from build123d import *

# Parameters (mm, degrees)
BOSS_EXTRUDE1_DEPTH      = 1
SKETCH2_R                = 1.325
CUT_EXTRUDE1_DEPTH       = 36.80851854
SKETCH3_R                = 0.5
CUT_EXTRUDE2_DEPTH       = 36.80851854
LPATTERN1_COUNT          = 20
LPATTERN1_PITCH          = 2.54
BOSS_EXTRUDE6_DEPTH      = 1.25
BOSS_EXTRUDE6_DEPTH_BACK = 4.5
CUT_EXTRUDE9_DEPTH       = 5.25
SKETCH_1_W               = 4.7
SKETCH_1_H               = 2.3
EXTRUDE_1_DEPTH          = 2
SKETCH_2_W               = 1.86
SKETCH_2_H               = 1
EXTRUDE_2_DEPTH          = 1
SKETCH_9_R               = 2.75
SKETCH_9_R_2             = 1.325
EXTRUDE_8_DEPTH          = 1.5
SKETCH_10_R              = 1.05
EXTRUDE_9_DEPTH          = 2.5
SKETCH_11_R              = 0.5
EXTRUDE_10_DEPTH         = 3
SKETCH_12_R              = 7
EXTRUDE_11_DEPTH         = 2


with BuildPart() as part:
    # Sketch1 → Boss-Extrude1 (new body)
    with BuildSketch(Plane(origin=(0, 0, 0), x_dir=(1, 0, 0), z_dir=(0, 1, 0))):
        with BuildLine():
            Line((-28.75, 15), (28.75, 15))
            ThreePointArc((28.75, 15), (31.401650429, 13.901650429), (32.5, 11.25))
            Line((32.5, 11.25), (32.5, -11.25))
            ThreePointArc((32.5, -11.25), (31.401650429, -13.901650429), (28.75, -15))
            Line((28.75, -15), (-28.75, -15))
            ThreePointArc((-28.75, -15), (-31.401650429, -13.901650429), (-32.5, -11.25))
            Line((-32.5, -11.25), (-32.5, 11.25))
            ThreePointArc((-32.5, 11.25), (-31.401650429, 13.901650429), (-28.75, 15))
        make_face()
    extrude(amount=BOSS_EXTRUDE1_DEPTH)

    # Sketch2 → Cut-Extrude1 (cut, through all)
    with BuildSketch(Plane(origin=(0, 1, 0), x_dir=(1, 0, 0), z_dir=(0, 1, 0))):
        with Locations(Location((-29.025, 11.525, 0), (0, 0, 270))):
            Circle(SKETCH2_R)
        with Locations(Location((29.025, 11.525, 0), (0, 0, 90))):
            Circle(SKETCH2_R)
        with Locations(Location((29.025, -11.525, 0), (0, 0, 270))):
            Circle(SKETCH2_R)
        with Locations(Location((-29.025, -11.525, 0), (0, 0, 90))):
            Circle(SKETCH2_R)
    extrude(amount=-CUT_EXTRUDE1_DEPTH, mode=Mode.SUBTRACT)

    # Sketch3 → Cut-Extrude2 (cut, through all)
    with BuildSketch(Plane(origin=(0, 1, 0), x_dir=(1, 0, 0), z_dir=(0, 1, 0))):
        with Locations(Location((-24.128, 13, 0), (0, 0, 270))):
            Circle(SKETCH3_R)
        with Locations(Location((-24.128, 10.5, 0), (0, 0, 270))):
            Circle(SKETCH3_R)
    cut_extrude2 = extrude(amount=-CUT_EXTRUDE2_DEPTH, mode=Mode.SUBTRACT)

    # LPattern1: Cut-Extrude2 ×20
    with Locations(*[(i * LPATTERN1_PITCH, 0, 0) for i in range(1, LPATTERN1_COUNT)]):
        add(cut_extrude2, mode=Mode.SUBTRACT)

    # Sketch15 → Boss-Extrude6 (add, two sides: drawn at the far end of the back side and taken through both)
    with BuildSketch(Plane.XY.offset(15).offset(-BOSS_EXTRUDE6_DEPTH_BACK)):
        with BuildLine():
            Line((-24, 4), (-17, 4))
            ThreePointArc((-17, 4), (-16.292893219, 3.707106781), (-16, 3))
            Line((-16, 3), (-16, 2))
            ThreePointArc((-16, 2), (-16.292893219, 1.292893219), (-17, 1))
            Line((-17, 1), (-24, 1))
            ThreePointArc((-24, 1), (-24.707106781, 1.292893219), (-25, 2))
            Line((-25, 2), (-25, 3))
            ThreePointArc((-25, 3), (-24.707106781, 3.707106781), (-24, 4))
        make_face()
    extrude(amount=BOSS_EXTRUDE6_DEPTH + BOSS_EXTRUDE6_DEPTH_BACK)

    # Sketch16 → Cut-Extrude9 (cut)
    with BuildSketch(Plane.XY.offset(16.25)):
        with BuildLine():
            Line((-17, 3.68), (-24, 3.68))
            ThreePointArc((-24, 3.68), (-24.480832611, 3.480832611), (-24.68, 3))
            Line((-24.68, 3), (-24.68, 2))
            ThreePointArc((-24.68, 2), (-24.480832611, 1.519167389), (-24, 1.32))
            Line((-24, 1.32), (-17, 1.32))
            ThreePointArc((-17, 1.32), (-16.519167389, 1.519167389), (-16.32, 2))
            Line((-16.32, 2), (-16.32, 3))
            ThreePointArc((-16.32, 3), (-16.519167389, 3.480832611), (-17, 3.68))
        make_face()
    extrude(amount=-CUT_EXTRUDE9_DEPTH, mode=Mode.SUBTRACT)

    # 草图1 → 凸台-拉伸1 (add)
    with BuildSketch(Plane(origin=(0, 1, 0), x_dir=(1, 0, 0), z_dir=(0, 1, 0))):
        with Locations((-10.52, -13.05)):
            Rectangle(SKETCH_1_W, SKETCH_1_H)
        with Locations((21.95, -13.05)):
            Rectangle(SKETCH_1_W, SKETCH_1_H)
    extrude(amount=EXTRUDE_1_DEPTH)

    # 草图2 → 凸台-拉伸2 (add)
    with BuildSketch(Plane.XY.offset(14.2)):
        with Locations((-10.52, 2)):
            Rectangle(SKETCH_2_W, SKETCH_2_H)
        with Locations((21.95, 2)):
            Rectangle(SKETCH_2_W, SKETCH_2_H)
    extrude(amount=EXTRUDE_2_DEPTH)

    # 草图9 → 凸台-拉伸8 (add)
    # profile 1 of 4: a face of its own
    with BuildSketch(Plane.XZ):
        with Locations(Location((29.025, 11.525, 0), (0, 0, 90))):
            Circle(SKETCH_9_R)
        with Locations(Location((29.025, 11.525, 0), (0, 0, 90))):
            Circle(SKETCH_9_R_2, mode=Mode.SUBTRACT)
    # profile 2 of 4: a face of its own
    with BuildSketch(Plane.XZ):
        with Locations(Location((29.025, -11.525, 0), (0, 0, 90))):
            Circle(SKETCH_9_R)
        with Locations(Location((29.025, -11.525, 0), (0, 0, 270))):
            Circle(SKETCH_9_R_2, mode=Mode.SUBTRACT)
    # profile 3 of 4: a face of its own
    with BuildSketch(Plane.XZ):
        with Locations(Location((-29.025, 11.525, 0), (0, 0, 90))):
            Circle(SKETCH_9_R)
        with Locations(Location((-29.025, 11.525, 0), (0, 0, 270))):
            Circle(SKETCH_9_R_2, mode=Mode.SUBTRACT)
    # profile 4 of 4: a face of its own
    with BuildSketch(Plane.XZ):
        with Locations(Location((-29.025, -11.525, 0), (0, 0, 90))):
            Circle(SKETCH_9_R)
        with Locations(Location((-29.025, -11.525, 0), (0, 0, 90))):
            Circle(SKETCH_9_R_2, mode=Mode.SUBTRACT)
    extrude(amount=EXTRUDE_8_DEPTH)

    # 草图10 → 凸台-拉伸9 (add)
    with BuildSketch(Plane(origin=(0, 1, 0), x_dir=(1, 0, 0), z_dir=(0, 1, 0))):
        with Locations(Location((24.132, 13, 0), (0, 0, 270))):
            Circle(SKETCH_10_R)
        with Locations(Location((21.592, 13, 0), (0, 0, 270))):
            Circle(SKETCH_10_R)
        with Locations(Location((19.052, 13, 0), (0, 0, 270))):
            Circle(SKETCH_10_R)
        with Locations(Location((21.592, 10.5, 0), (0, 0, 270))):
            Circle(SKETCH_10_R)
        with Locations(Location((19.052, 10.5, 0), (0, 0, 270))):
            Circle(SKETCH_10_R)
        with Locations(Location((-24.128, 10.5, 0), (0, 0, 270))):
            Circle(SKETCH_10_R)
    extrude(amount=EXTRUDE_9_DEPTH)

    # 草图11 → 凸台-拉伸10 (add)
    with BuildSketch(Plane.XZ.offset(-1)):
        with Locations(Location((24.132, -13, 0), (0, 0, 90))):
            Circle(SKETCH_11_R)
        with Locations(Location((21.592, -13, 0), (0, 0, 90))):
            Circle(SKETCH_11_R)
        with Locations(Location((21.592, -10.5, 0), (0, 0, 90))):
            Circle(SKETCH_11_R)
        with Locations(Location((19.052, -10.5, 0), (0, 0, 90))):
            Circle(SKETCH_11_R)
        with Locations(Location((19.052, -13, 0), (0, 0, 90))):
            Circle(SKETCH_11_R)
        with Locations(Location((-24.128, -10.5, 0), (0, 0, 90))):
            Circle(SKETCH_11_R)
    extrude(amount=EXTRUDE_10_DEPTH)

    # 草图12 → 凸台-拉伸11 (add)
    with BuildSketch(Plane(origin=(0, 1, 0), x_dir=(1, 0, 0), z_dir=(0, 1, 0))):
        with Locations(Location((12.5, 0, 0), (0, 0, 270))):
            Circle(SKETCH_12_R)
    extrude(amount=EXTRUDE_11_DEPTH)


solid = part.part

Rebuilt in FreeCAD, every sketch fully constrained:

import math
import FreeCAD as App
import Part
import Sketcher
Q = App.Units.Quantity


def add_polygon(sketch, points):
    """Adds a closed chain of lines whose ends are joined by coincident constraints."""
    first, n = sketch.GeometryCount, len(points)
    for a, b in zip(points, points[1:] + points[:1]):
        sketch.addGeometry(Part.LineSegment(App.Vector(*a, 0), App.Vector(*b, 0)), False)
    for i in range(n):
        sketch.addConstraint(Sketcher.Constraint("Coincident", first + i, 2, first + (i + 1) % n, 1))

doc = App.newDocument("Part")
params = doc.addObject("Spreadsheet::Sheet", "Params")
for row, (alias, value) in enumerate([
    ("sketch1_radius", "3.75 mm"),
    ("sketch1_width", "57.5 mm"),
    ("sketch1_height", "22.5 mm"),
    ("pad1_length", "1 mm"),
    ("sketch2_diameter", "2.65 mm"),
    ("sketch3_diameter", "1 mm"),
    ("linearpattern_pitch", "2.54 mm"),
    ("sketch4_radius", "1 mm"),
    ("sketch4_width", "7 mm"),
    ("sketch4_height", "1 mm"),
    ("pad2_length", "1.25 mm"),
    ("pad2_length2", "4.5 mm"),
    ("sketch5_width", "7 mm"),
    ("sketch5_height", "1 mm"),
    ("sketch5_radius", "0.68 mm"),
    ("pocket3_length", "5.25 mm"),
    ("sketch6_width", "4.7 mm"),
    ("sketch6_height", "2.3 mm"),
    ("pad3_length", "2 mm"),
    ("sketch7_height", "1 mm"),
    ("sketch7_width", "1.86 mm"),
    ("pad4_length", "1 mm"),
    ("sketch8_diameter", "5.5 mm"),
    ("sketch8_diameter2", "2.65 mm"),
    ("pad5_length", "1.5 mm"),
    ("sketch9_diameter", "2.1 mm"),
    ("pad6_length", "2.5 mm"),
    ("sketch10_diameter", "1 mm"),
    ("pad7_length", "3 mm"),
    ("sketch11_diameter", "14 mm"),
    ("pad8_length", "2 mm"),
], start=1):
    params.set(f"A{row}", alias)
    params.set(f"B{row}", "=" + value)
    params.setAlias(f"B{row}", alias)

body = doc.addObject("PartDesign::Body", "Body")

sketch1 = doc.addObject("Sketcher::SketchObject", "Sketch")
body.addObject(sketch1)
sketch1.AttachmentSupport = (doc.XZ_Plane, [""])
sketch1.MapMode = "FlatFace"
sketch1.addGeometry(Part.LineSegment(App.Vector(28.75, -15, 0), App.Vector(-28.75, -15, 0)), False)
sketch1.addGeometry(Part.ArcOfCircle(Part.Circle(App.Vector(-28.75, -11.25, 0), App.Vector(0, 0, 1), 3.75), math.radians(-180), math.radians(-90)), False)
sketch1.addGeometry(Part.LineSegment(App.Vector(-32.5, -11.25, 0), App.Vector(-32.5, 11.25, 0)), False)
sketch1.addGeometry(Part.ArcOfCircle(Part.Circle(App.Vector(-28.75, 11.25, 0), App.Vector(0, 0, 1), 3.75), math.radians(90), math.radians(180)), False)
sketch1.addGeometry(Part.LineSegment(App.Vector(-28.75, 15, 0), App.Vector(28.75, 15, 0)), False)
sketch1.addGeometry(Part.ArcOfCircle(Part.Circle(App.Vector(28.75, 11.25, 0), App.Vector(0, 0, 1), 3.75), math.radians(0), math.radians(90)), False)
sketch1.addGeometry(Part.LineSegment(App.Vector(32.5, 11.25, 0), App.Vector(32.5, -11.25, 0)), False)
sketch1.addGeometry(Part.ArcOfCircle(Part.Circle(App.Vector(28.75, -11.25, 0), App.Vector(0, 0, 1), 3.75), math.radians(-90), math.radians(0)), False)
sketch1.addConstraint(Sketcher.Constraint("Tangent", 0, 2, 1, 2))
sketch1.addConstraint(Sketcher.Constraint("Tangent", 1, 1, 2, 1))
sketch1.addConstraint(Sketcher.Constraint("Tangent", 2, 2, 3, 2))
sketch1.addConstraint(Sketcher.Constraint("Tangent", 3, 1, 4, 1))
sketch1.addConstraint(Sketcher.Constraint("Tangent", 4, 2, 5, 2))
sketch1.addConstraint(Sketcher.Constraint("Tangent", 5, 1, 6, 1))
sketch1.addConstraint(Sketcher.Constraint("Tangent", 6, 2, 7, 2))
sketch1.addConstraint(Sketcher.Constraint("Tangent", 7, 1, 0, 1))
sketch1.addConstraint(Sketcher.Constraint("Horizontal", 0))
sketch1.addConstraint(Sketcher.Constraint("Vertical", 2))
sketch1.addConstraint(Sketcher.Constraint("Horizontal", 4))
sketch1.addConstraint(Sketcher.Constraint("Vertical", 6))
sketch1.addConstraint(Sketcher.Constraint("Equal", 1, 3))
sketch1.addConstraint(Sketcher.Constraint("Equal", 3, 5))
sketch1.addConstraint(Sketcher.Constraint("Equal", 5, 7))
sketch1.addConstraint(Sketcher.Constraint("Symmetric", 1, 3, 5, 3, -1, 1))
sketch1.addConstraint(Sketcher.Constraint("Radius", 1, Q("3.75 mm")))
sketch1.addConstraint(Sketcher.Constraint("DistanceX", 0, 2, 0, 1, Q("57.5 mm")))
sketch1.addConstraint(Sketcher.Constraint("DistanceY", 2, 1, 2, 2, Q("22.5 mm")))
sketch1.setExpression("Constraints[16]", "Params.sketch1_radius")
sketch1.setExpression("Constraints[17]", "Params.sketch1_width")
sketch1.setExpression("Constraints[18]", "Params.sketch1_height")
pad1 = doc.addObject("PartDesign::Pad", "Pad")
body.addObject(pad1)
pad1.Profile = sketch1
pad1.setExpression("Length", "Params.pad1_length")
pad1.Reversed = True

sketch2 = doc.addObject("Sketcher::SketchObject", "Sketch001")
body.addObject(sketch2)
sketch2.AttachmentSupport = (doc.XZ_Plane, [""])
sketch2.MapMode = "FlatFace"
sketch2.AttachmentOffset = App.Placement(App.Vector(0, 0, -1), App.Rotation())
sketch2.addGeometry(Part.Circle(App.Vector(-29.025, -11.525, 0), App.Vector(0, 0, 1), 1.325), False)
sketch2.addGeometry(Part.Circle(App.Vector(29.025, -11.525, 0), App.Vector(0, 0, 1), 1.325), False)
sketch2.addGeometry(Part.Circle(App.Vector(29.025, 11.525, 0), App.Vector(0, 0, 1), 1.325), False)
sketch2.addGeometry(Part.Circle(App.Vector(-29.025, 11.525, 0), App.Vector(0, 0, 1), 1.325), False)
sketch2.addConstraint(Sketcher.Constraint("Equal", 0, 1))
sketch2.addConstraint(Sketcher.Constraint("Equal", 1, 2))
sketch2.addConstraint(Sketcher.Constraint("Equal", 2, 3))
sketch2.addConstraint(Sketcher.Constraint("Symmetric", 0, 3, 2, 3, -1, 1))
sketch2.addConstraint(Sketcher.Constraint("Symmetric", 1, 3, 3, 3, -1, 1))
sketch2.addConstraint(Sketcher.Constraint("Symmetric", 0, 3, 1, 3, -2))
sketch2.addConstraint(Sketcher.Constraint("Diameter", 0, Q("2.65 mm")))
sketch2.addConstraint(Sketcher.Constraint("DistanceX", 0, 3, 1, 3, Q("58.05 mm")))
sketch2.addConstraint(Sketcher.Constraint("DistanceY", 1, 3, 2, 3, Q("23.05 mm")))
sketch2.setExpression("Constraints[6]", "Params.sketch2_diameter")
pocket1 = doc.addObject("PartDesign::Pocket", "Pocket")
body.addObject(pocket1)
pocket1.Profile = sketch2
pocket1.Type = "ThroughAll"
pocket1.Reversed = True

sketch3 = doc.addObject("Sketcher::SketchObject", "Sketch002")
body.addObject(sketch3)
sketch3.AttachmentSupport = (doc.XZ_Plane, [""])
sketch3.MapMode = "FlatFace"
sketch3.AttachmentOffset = App.Placement(App.Vector(0, 0, -1), App.Rotation())
sketch3.addGeometry(Part.Circle(App.Vector(-24.128, -13, 0), App.Vector(0, 0, 1), 0.5), False)
sketch3.addGeometry(Part.Circle(App.Vector(-24.128, -10.5, 0), App.Vector(0, 0, 1), 0.5), False)
sketch3.addConstraint(Sketcher.Constraint("Equal", 0, 1))
sketch3.addConstraint(Sketcher.Constraint("Vertical", 0, 3, 1, 3))
sketch3.addConstraint(Sketcher.Constraint("Diameter", 0, Q("1 mm")))
sketch3.addConstraint(Sketcher.Constraint("DistanceY", 0, 3, -1, 1, Q("13 mm")))
sketch3.addConstraint(Sketcher.Constraint("DistanceY", 1, 3, -1, 1, Q("10.5 mm")))
sketch3.addConstraint(Sketcher.Constraint("DistanceX", 0, 3, -1, 1, Q("24.128 mm")))
sketch3.setExpression("Constraints[2]", "Params.sketch3_diameter")
pocket2 = doc.addObject("PartDesign::Pocket", "Pocket001")
body.addObject(pocket2)
pocket2.Profile = sketch3
pocket2.Type = "ThroughAll"
pocket2.Reversed = True
doc.recompute()

linearpattern = doc.addObject("PartDesign::LinearPattern", "LinearPattern")
body.addObject(linearpattern)
linearpattern.Originals = [pocket2]
linearpattern.Direction = (doc.X_Axis, [""])
linearpattern.Mode = "offset"
linearpattern.setExpression("Offset", "Params.linearpattern_pitch")
linearpattern.Occurrences = 20
body.Tip = linearpattern

sketch4 = doc.addObject("Sketcher::SketchObject", "Sketch003")
body.addObject(sketch4)
sketch4.AttachmentSupport = (doc.XY_Plane, [""])
sketch4.MapMode = "FlatFace"
sketch4.AttachmentOffset = App.Placement(App.Vector(0, 0, 15), App.Rotation())
sketch4.addGeometry(Part.LineSegment(App.Vector(-17, 4, 0), App.Vector(-24, 4, 0)), False)
sketch4.addGeometry(Part.ArcOfCircle(Part.Circle(App.Vector(-24, 3, 0), App.Vector(0, 0, 1), 1), math.radians(90), math.radians(180)), False)
sketch4.addGeometry(Part.LineSegment(App.Vector(-25, 3, 0), App.Vector(-25, 2, 0)), False)
sketch4.addGeometry(Part.ArcOfCircle(Part.Circle(App.Vector(-24, 2, 0), App.Vector(0, 0, 1), 1), math.radians(-180), math.radians(-90)), False)
sketch4.addGeometry(Part.LineSegment(App.Vector(-24, 1, 0), App.Vector(-17, 1, 0)), False)
sketch4.addGeometry(Part.ArcOfCircle(Part.Circle(App.Vector(-17, 2, 0), App.Vector(0, 0, 1), 1), math.radians(-90), math.radians(0)), False)
sketch4.addGeometry(Part.LineSegment(App.Vector(-16, 2, 0), App.Vector(-16, 3, 0)), False)
sketch4.addGeometry(Part.ArcOfCircle(Part.Circle(App.Vector(-17, 3, 0), App.Vector(0, 0, 1), 1), math.radians(0), math.radians(90)), False)
sketch4.addConstraint(Sketcher.Constraint("Tangent", 0, 2, 1, 1))
sketch4.addConstraint(Sketcher.Constraint("Tangent", 1, 2, 2, 1))
sketch4.addConstraint(Sketcher.Constraint("Tangent", 2, 2, 3, 1))
sketch4.addConstraint(Sketcher.Constraint("Tangent", 3, 2, 4, 1))
sketch4.addConstraint(Sketcher.Constraint("Tangent", 4, 2, 5, 1))
sketch4.addConstraint(Sketcher.Constraint("Tangent", 5, 2, 6, 1))
sketch4.addConstraint(Sketcher.Constraint("Tangent", 6, 2, 7, 1))
sketch4.addConstraint(Sketcher.Constraint("Tangent", 7, 2, 0, 1))
sketch4.addConstraint(Sketcher.Constraint("Horizontal", 0))
sketch4.addConstraint(Sketcher.Constraint("Vertical", 2))
sketch4.addConstraint(Sketcher.Constraint("Horizontal", 4))
sketch4.addConstraint(Sketcher.Constraint("Vertical", 6))
sketch4.addConstraint(Sketcher.Constraint("Equal", 1, 3))
sketch4.addConstraint(Sketcher.Constraint("Equal", 3, 5))
sketch4.addConstraint(Sketcher.Constraint("Equal", 5, 7))
sketch4.addConstraint(Sketcher.Constraint("Radius", 1, Q("1 mm")))
sketch4.addConstraint(Sketcher.Constraint("DistanceX", 0, 2, 0, 1, Q("7 mm")))
sketch4.addConstraint(Sketcher.Constraint("DistanceY", 2, 2, 2, 1, Q("1 mm")))
sketch4.addConstraint(Sketcher.Constraint("DistanceX", 1, 3, -1, 1, Q("24 mm")))
sketch4.addConstraint(Sketcher.Constraint("DistanceY", -1, 1, 1, 3, Q("3 mm")))
sketch4.setExpression("Constraints[15]", "Params.sketch4_radius")
sketch4.setExpression("Constraints[16]", "Params.sketch4_width")
sketch4.setExpression("Constraints[17]", "Params.sketch4_height")
pad2 = doc.addObject("PartDesign::Pad", "Pad001")
body.addObject(pad2)
pad2.Profile = sketch4
pad2.Type = "TwoLengths"
pad2.setExpression("Length", "Params.pad2_length")
pad2.setExpression("Length2", "Params.pad2_length2")

sketch5 = doc.addObject("Sketcher::SketchObject", "Sketch004")
body.addObject(sketch5)
sketch5.AttachmentSupport = (doc.XY_Plane, [""])
sketch5.MapMode = "FlatFace"
sketch5.AttachmentOffset = App.Placement(App.Vector(0, 0, 16.25), App.Rotation())
sketch5.addGeometry(Part.LineSegment(App.Vector(-17, 3.68, 0), App.Vector(-24, 3.68, 0)), False)
sketch5.addGeometry(Part.ArcOfCircle(Part.Circle(App.Vector(-24, 3, 0), App.Vector(0, 0, 1), 0.68), math.radians(90), math.radians(180)), False)
sketch5.addGeometry(Part.LineSegment(App.Vector(-24.68, 3, 0), App.Vector(-24.68, 2, 0)), False)
sketch5.addGeometry(Part.ArcOfCircle(Part.Circle(App.Vector(-24, 2, 0), App.Vector(0, 0, 1), 0.68), math.radians(-180), math.radians(-90)), False)
sketch5.addGeometry(Part.LineSegment(App.Vector(-24, 1.32, 0), App.Vector(-17, 1.32, 0)), False)
sketch5.addGeometry(Part.ArcOfCircle(Part.Circle(App.Vector(-17, 2, 0), App.Vector(0, 0, 1), 0.68), math.radians(-90), math.radians(0)), False)
sketch5.addGeometry(Part.LineSegment(App.Vector(-16.32, 2, 0), App.Vector(-16.32, 3, 0)), False)
sketch5.addGeometry(Part.ArcOfCircle(Part.Circle(App.Vector(-17, 3, 0), App.Vector(0, 0, 1), 0.68), math.radians(0), math.radians(90)), False)
sketch5.addConstraint(Sketcher.Constraint("Tangent", 0, 2, 1, 1))
sketch5.addConstraint(Sketcher.Constraint("Tangent", 1, 2, 2, 1))
sketch5.addConstraint(Sketcher.Constraint("Tangent", 2, 2, 3, 1))
sketch5.addConstraint(Sketcher.Constraint("Tangent", 3, 2, 4, 1))
sketch5.addConstraint(Sketcher.Constraint("Tangent", 4, 2, 5, 1))
sketch5.addConstraint(Sketcher.Constraint("Tangent", 5, 2, 6, 1))
sketch5.addConstraint(Sketcher.Constraint("Tangent", 6, 2, 7, 1))
sketch5.addConstraint(Sketcher.Constraint("Tangent", 7, 2, 0, 1))
sketch5.addConstraint(Sketcher.Constraint("Horizontal", 0))
sketch5.addConstraint(Sketcher.Constraint("Vertical", 2))
sketch5.addConstraint(Sketcher.Constraint("Horizontal", 4))
sketch5.addConstraint(Sketcher.Constraint("Vertical", 6))
sketch5.addConstraint(Sketcher.Constraint("Equal", 1, 3))
sketch5.addConstraint(Sketcher.Constraint("Equal", 3, 5))
sketch5.addConstraint(Sketcher.Constraint("Equal", 5, 7))
sketch5.addConstraint(Sketcher.Constraint("DistanceX", 0, 2, 0, 1, Q("7 mm")))
sketch5.addConstraint(Sketcher.Constraint("DistanceY", 2, 2, 2, 1, Q("1 mm")))
sketch5.addConstraint(Sketcher.Constraint("Radius", 1, Q("0.68 mm")))
sketch5.addConstraint(Sketcher.Constraint("DistanceX", 1, 3, -1, 1, Q("24 mm")))
sketch5.addConstraint(Sketcher.Constraint("DistanceY", -1, 1, 1, 3, Q("3 mm")))
sketch5.setExpression("Constraints[15]", "Params.sketch5_width")
sketch5.setExpression("Constraints[16]", "Params.sketch5_height")
sketch5.setExpression("Constraints[17]", "Params.sketch5_radius")
pocket3 = doc.addObject("PartDesign::Pocket", "Pocket002")
body.addObject(pocket3)
pocket3.Profile = sketch5
pocket3.setExpression("Length", "Params.pocket3_length")

sketch6 = doc.addObject("Sketcher::SketchObject", "Sketch005")
body.addObject(sketch6)
sketch6.AttachmentSupport = (doc.XZ_Plane, [""])
sketch6.MapMode = "FlatFace"
sketch6.AttachmentOffset = App.Placement(App.Vector(0, 0, -1), App.Rotation())
add_polygon(sketch6, [(-12.87, 11.9), (-12.87, 14.2), (-8.17, 14.2), (-8.17, 11.9)])
add_polygon(sketch6, [(19.6, 11.9), (19.6, 14.2), (24.3, 14.2), (24.3, 11.9)])
sketch6.addConstraint(Sketcher.Constraint("Vertical", 0))
sketch6.addConstraint(Sketcher.Constraint("Horizontal", 1))
sketch6.addConstraint(Sketcher.Constraint("Vertical", 2))
sketch6.addConstraint(Sketcher.Constraint("Horizontal", 3))
sketch6.addConstraint(Sketcher.Constraint("Vertical", 4))
sketch6.addConstraint(Sketcher.Constraint("Horizontal", 5))
sketch6.addConstraint(Sketcher.Constraint("Vertical", 6))
sketch6.addConstraint(Sketcher.Constraint("Horizontal", 7))
sketch6.addConstraint(Sketcher.Constraint("Horizontal", 1, 2, 4, 2))
sketch6.addConstraint(Sketcher.Constraint("Horizontal", 3, 2, 6, 2))
sketch6.addConstraint(Sketcher.Constraint("Equal", 3, 5))
sketch6.addConstraint(Sketcher.Constraint("DistanceX", 1, 1, 1, 2, Q("4.7 mm")))
sketch6.addConstraint(Sketcher.Constraint("DistanceY", 0, 1, 0, 2, Q("2.3 mm")))
sketch6.addConstraint(Sketcher.Constraint("DistanceY", -1, 1, 0, 2, Q("14.2 mm")))
sketch6.addConstraint(Sketcher.Constraint("DistanceX", -1, 1, 4, 2, Q("19.6 mm")))
sketch6.addConstraint(Sketcher.Constraint("DistanceX", 0, 2, -1, 1, Q("12.87 mm")))
sketch6.setExpression("Constraints[19]", "Params.sketch6_width")
sketch6.setExpression("Constraints[20]", "Params.sketch6_height")
pad3 = doc.addObject("PartDesign::Pad", "Pad002")
body.addObject(pad3)
pad3.Profile = sketch6
pad3.setExpression("Length", "Params.pad3_length")
pad3.Reversed = True

sketch7 = doc.addObject("Sketcher::SketchObject", "Sketch006")
body.addObject(sketch7)
sketch7.AttachmentSupport = (doc.XY_Plane, [""])
sketch7.MapMode = "FlatFace"
sketch7.AttachmentOffset = App.Placement(App.Vector(0, 0, 14.2), App.Rotation())
add_polygon(sketch7, [(-11.45, 2.5), (-11.45, 1.5), (-9.59, 1.5), (-9.59, 2.5)])
add_polygon(sketch7, [(21.02, 2.5), (21.02, 1.5), (22.88, 1.5), (22.88, 2.5)])
sketch7.addConstraint(Sketcher.Constraint("Vertical", 0))
sketch7.addConstraint(Sketcher.Constraint("Horizontal", 1))
sketch7.addConstraint(Sketcher.Constraint("Vertical", 2))
sketch7.addConstraint(Sketcher.Constraint("Horizontal", 3))
sketch7.addConstraint(Sketcher.Constraint("Vertical", 4))
sketch7.addConstraint(Sketcher.Constraint("Horizontal", 5))
sketch7.addConstraint(Sketcher.Constraint("Vertical", 6))
sketch7.addConstraint(Sketcher.Constraint("Horizontal", 7))
sketch7.addConstraint(Sketcher.Constraint("Horizontal", 1, 2, 4, 2))
sketch7.addConstraint(Sketcher.Constraint("Horizontal", 3, 2, 6, 2))
sketch7.addConstraint(Sketcher.Constraint("Equal", 3, 5))
sketch7.addConstraint(Sketcher.Constraint("DistanceY", 0, 2, 0, 1, Q("1 mm")))
sketch7.addConstraint(Sketcher.Constraint("DistanceX", 1, 1, 1, 2, Q("1.86 mm")))
sketch7.addConstraint(Sketcher.Constraint("DistanceY", -1, 1, 0, 2, Q("1.5 mm")))
sketch7.addConstraint(Sketcher.Constraint("DistanceX", 0, 2, -1, 1, Q("11.45 mm")))
sketch7.addConstraint(Sketcher.Constraint("DistanceX", -1, 1, 4, 2, Q("21.02 mm")))
sketch7.setExpression("Constraints[19]", "Params.sketch7_height")
sketch7.setExpression("Constraints[20]", "Params.sketch7_width")
pad4 = doc.addObject("PartDesign::Pad", "Pad003")
body.addObject(pad4)
pad4.Profile = sketch7
pad4.setExpression("Length", "Params.pad4_length")

sketch8 = doc.addObject("Sketcher::SketchObject", "Sketch007")
body.addObject(sketch8)
sketch8.AttachmentSupport = (doc.XZ_Plane, [""])
sketch8.MapMode = "FlatFace"
sketch8.addGeometry(Part.Circle(App.Vector(29.025, 11.525, 0), App.Vector(0, 0, 1), 2.75), False)
sketch8.addGeometry(Part.Circle(App.Vector(29.025, 11.525, 0), App.Vector(0, 0, 1), 1.325), False)
sketch8.addGeometry(Part.Circle(App.Vector(29.025, -11.525, 0), App.Vector(0, 0, 1), 2.75), False)
sketch8.addGeometry(Part.Circle(App.Vector(29.025, -11.525, 0), App.Vector(0, 0, 1), 1.325), False)
sketch8.addGeometry(Part.Circle(App.Vector(-29.025, 11.525, 0), App.Vector(0, 0, 1), 2.75), False)
sketch8.addGeometry(Part.Circle(App.Vector(-29.025, 11.525, 0), App.Vector(0, 0, 1), 1.325), False)
sketch8.addGeometry(Part.Circle(App.Vector(-29.025, -11.525, 0), App.Vector(0, 0, 1), 2.75), False)
sketch8.addGeometry(Part.Circle(App.Vector(-29.025, -11.525, 0), App.Vector(0, 0, 1), 1.325), False)
sketch8.addConstraint(Sketcher.Constraint("Coincident", 1, 3, 0, 3))
sketch8.addConstraint(Sketcher.Constraint("Coincident", 3, 3, 2, 3))
sketch8.addConstraint(Sketcher.Constraint("Coincident", 5, 3, 4, 3))
sketch8.addConstraint(Sketcher.Constraint("Coincident", 7, 3, 6, 3))
sketch8.addConstraint(Sketcher.Constraint("Equal", 0, 2))
sketch8.addConstraint(Sketcher.Constraint("Equal", 1, 3))
sketch8.addConstraint(Sketcher.Constraint("Equal", 2, 4))
sketch8.addConstraint(Sketcher.Constraint("Equal", 3, 5))
sketch8.addConstraint(Sketcher.Constraint("Equal", 4, 6))
sketch8.addConstraint(Sketcher.Constraint("Equal", 5, 7))
sketch8.addConstraint(Sketcher.Constraint("Symmetric", 2, 3, 4, 3, -1, 1))
sketch8.addConstraint(Sketcher.Constraint("Symmetric", 0, 3, 6, 3, -1, 1))
sketch8.addConstraint(Sketcher.Constraint("Symmetric", 0, 3, 4, 3, -2))
sketch8.addConstraint(Sketcher.Constraint("Diameter", 0, Q("5.5 mm")))
sketch8.addConstraint(Sketcher.Constraint("Diameter", 1, Q("2.65 mm")))
sketch8.addConstraint(Sketcher.Constraint("DistanceY", 2, 3, 0, 3, Q("23.05 mm")))
sketch8.addConstraint(Sketcher.Constraint("DistanceX", 4, 3, 0, 3, Q("58.05 mm")))
sketch8.setExpression("Constraints[13]", "Params.sketch8_diameter")
sketch8.setExpression("Constraints[14]", "Params.sketch8_diameter2")
pad5 = doc.addObject("PartDesign::Pad", "Pad004")
body.addObject(pad5)
pad5.Profile = sketch8
pad5.setExpression("Length", "Params.pad5_length")

sketch9 = doc.addObject("Sketcher::SketchObject", "Sketch008")
body.addObject(sketch9)
sketch9.AttachmentSupport = (doc.XZ_Plane, [""])
sketch9.MapMode = "FlatFace"
sketch9.AttachmentOffset = App.Placement(App.Vector(0, 0, -1), App.Rotation())
sketch9.addGeometry(Part.Circle(App.Vector(24.132, -13, 0), App.Vector(0, 0, 1), 1.05), False)
sketch9.addGeometry(Part.Circle(App.Vector(21.592, -13, 0), App.Vector(0, 0, 1), 1.05), False)
sketch9.addGeometry(Part.Circle(App.Vector(19.052, -13, 0), App.Vector(0, 0, 1), 1.05), False)
sketch9.addGeometry(Part.Circle(App.Vector(21.592, -10.5, 0), App.Vector(0, 0, 1), 1.05), False)
sketch9.addGeometry(Part.Circle(App.Vector(19.052, -10.5, 0), App.Vector(0, 0, 1), 1.05), False)
sketch9.addGeometry(Part.Circle(App.Vector(-24.128, -10.5, 0), App.Vector(0, 0, 1), 1.05), False)
sketch9.addConstraint(Sketcher.Constraint("Equal", 0, 1))
sketch9.addConstraint(Sketcher.Constraint("Equal", 1, 2))
sketch9.addConstraint(Sketcher.Constraint("Equal", 2, 3))
sketch9.addConstraint(Sketcher.Constraint("Equal", 3, 4))
sketch9.addConstraint(Sketcher.Constraint("Equal", 4, 5))
sketch9.addConstraint(Sketcher.Constraint("Horizontal", 0, 3, 1, 3))
sketch9.addConstraint(Sketcher.Constraint("Horizontal", 1, 3, 2, 3))
sketch9.addConstraint(Sketcher.Constraint("Horizontal", 3, 3, 4, 3))
sketch9.addConstraint(Sketcher.Constraint("Horizontal", 4, 3, 5, 3))
sketch9.addConstraint(Sketcher.Constraint("Vertical", 1, 3, 3, 3))
sketch9.addConstraint(Sketcher.Constraint("Vertical", 2, 3, 4, 3))
sketch9.addConstraint(Sketcher.Constraint("Diameter", 0, Q("2.1 mm")))
sketch9.addConstraint(Sketcher.Constraint("DistanceY", 0, 3, -1, 1, Q("13 mm")))
sketch9.addConstraint(Sketcher.Constraint("DistanceY", 3, 3, -1, 1, Q("10.5 mm")))
sketch9.addConstraint(Sketcher.Constraint("DistanceX", 1, 3, 0, 3, Q("2.54 mm")))
sketch9.addConstraint(Sketcher.Constraint("DistanceX", 2, 3, 1, 3, Q("2.54 mm")))
sketch9.addConstraint(Sketcher.Constraint("DistanceX", 5, 3, 4, 3, Q("43.18 mm")))
sketch9.addConstraint(Sketcher.Constraint("DistanceX", -1, 1, 0, 3, Q("24.132 mm")))
sketch9.setExpression("Constraints[11]", "Params.sketch9_diameter")
pad6 = doc.addObject("PartDesign::Pad", "Pad005")
body.addObject(pad6)
pad6.Profile = sketch9
pad6.setExpression("Length", "Params.pad6_length")
pad6.Reversed = True

sketch10 = doc.addObject("Sketcher::SketchObject", "Sketch009")
body.addObject(sketch10)
sketch10.AttachmentSupport = (doc.XZ_Plane, [""])
sketch10.MapMode = "FlatFace"
sketch10.AttachmentOffset = App.Placement(App.Vector(0, 0, -1), App.Rotation())
sketch10.addGeometry(Part.Circle(App.Vector(24.132, -13, 0), App.Vector(0, 0, 1), 0.5), False)
sketch10.addGeometry(Part.Circle(App.Vector(21.592, -13, 0), App.Vector(0, 0, 1), 0.5), False)
sketch10.addGeometry(Part.Circle(App.Vector(21.592, -10.5, 0), App.Vector(0, 0, 1), 0.5), False)
sketch10.addGeometry(Part.Circle(App.Vector(19.052, -10.5, 0), App.Vector(0, 0, 1), 0.5), False)
sketch10.addGeometry(Part.Circle(App.Vector(19.052, -13, 0), App.Vector(0, 0, 1), 0.5), False)
sketch10.addGeometry(Part.Circle(App.Vector(-24.128, -10.5, 0), App.Vector(0, 0, 1), 0.5), False)
sketch10.addConstraint(Sketcher.Constraint("Equal", 0, 1))
sketch10.addConstraint(Sketcher.Constraint("Equal", 1, 2))
sketch10.addConstraint(Sketcher.Constraint("Equal", 2, 3))
sketch10.addConstraint(Sketcher.Constraint("Equal", 3, 4))
sketch10.addConstraint(Sketcher.Constraint("Equal", 4, 5))
sketch10.addConstraint(Sketcher.Constraint("Horizontal", 0, 3, 1, 3))
sketch10.addConstraint(Sketcher.Constraint("Horizontal", 2, 3, 3, 3))
sketch10.addConstraint(Sketcher.Constraint("Horizontal", 1, 3, 4, 3))
sketch10.addConstraint(Sketcher.Constraint("Horizontal", 3, 3, 5, 3))
sketch10.addConstraint(Sketcher.Constraint("Vertical", 1, 3, 2, 3))
sketch10.addConstraint(Sketcher.Constraint("Vertical", 3, 3, 4, 3))
sketch10.addConstraint(Sketcher.Constraint("Diameter", 0, Q("1 mm")))
sketch10.addConstraint(Sketcher.Constraint("DistanceY", 0, 3, -1, 1, Q("13 mm")))
sketch10.addConstraint(Sketcher.Constraint("DistanceY", 2, 3, -1, 1, Q("10.5 mm")))
sketch10.addConstraint(Sketcher.Constraint("DistanceX", 1, 3, 0, 3, Q("2.54 mm")))
sketch10.addConstraint(Sketcher.Constraint("DistanceX", 3, 3, 2, 3, Q("2.54 mm")))
sketch10.addConstraint(Sketcher.Constraint("DistanceX", 5, 3, 3, 3, Q("43.18 mm")))
sketch10.addConstraint(Sketcher.Constraint("DistanceX", -1, 1, 0, 3, Q("24.132 mm")))
sketch10.setExpression("Constraints[11]", "Params.sketch10_diameter")
pad7 = doc.addObject("PartDesign::Pad", "Pad006")
body.addObject(pad7)
pad7.Profile = sketch10
pad7.setExpression("Length", "Params.pad7_length")

sketch11 = doc.addObject("Sketcher::SketchObject", "Sketch010")
body.addObject(sketch11)
sketch11.AttachmentSupport = (doc.XZ_Plane, [""])
sketch11.MapMode = "FlatFace"
sketch11.AttachmentOffset = App.Placement(App.Vector(0, 0, -1), App.Rotation())
sketch11.addGeometry(Part.Circle(App.Vector(12.5, 0, 0), App.Vector(0, 0, 1), 7), False)
sketch11.addConstraint(Sketcher.Constraint("PointOnObject", 0, 3, -1))
sketch11.addConstraint(Sketcher.Constraint("Diameter", 0, Q("14 mm")))
sketch11.addConstraint(Sketcher.Constraint("DistanceX", -1, 1, 0, 3, Q("12.5 mm")))
sketch11.setExpression("Constraints[1]", "Params.sketch11_diameter")
pad8 = doc.addObject("PartDesign::Pad", "Pad007")
body.addObject(pad8)
pad8.Profile = sketch11
pad8.setExpression("Length", "Params.pad8_length")
pad8.Reversed = True

doc.recompute()
